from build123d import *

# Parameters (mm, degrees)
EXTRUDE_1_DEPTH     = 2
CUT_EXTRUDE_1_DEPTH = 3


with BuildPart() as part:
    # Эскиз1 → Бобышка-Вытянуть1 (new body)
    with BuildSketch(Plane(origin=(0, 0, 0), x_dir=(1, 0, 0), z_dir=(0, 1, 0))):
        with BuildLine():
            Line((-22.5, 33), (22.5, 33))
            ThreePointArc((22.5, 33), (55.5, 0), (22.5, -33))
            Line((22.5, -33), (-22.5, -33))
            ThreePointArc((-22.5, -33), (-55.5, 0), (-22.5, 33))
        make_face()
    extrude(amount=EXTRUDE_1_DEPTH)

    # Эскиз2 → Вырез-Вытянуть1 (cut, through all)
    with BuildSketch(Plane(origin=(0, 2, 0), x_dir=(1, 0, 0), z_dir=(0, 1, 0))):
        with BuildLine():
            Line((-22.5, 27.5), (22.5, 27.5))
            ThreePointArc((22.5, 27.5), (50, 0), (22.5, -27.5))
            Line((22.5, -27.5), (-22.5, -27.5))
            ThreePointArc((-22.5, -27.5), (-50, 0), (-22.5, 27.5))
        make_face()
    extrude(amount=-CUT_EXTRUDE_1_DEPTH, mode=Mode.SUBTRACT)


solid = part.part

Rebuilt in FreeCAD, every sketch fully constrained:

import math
import FreeCAD as App
import Part
import Sketcher

V = App.Vector

doc = App.newDocument("Part")
body = doc.addObject("PartDesign::Body", "Body")

# Sketch on XZ plane
sketch1 = body.newObject("Sketcher::SketchObject", "Sketch")
sketch1.AttachmentSupport = (doc.getObject("XZ_Plane"), [""])
sketch1.MapMode = "FlatFace"
sketch1.addGeometry(Part.LineSegment(V(22, -33, 0), V(-22, -33, 0)), False)
sketch1.addGeometry(Part.ArcOfCircle(Part.Circle(V(-22, 0, 0), V(0, 0, 1), 33), math.radians(90), math.radians(270)), False)
sketch1.addGeometry(Part.LineSegment(V(-22, 33, 0), V(22, 33, 0)), False)
sketch1.addGeometry(Part.ArcOfCircle(Part.Circle(V(22, 0, 0), V(0, 0, 1), 33), math.radians(-90), math.radians(90)), False)
sketch1.addConstraint(Sketcher.Constraint("Tangent", 0, 2, 1, 2))
sketch1.addConstraint(Sketcher.Constraint("Tangent", 1, 1, 2, 1))
sketch1.addConstraint(Sketcher.Constraint("Tangent", 2, 2, 3, 2))
sketch1.addConstraint(Sketcher.Constraint("Tangent", 3, 1, 0, 1))
sketch1.addConstraint(Sketcher.Constraint("Horizontal", 0))
sketch1.addConstraint(Sketcher.Constraint("Horizontal", 2))
sketch1.addConstraint(Sketcher.Constraint("Symmetric", 1, 3, 3, 3, -1, 1))
sketch1.addConstraint(Sketcher.Constraint("Radius", 1, 33.0))
sketch1.addConstraint(Sketcher.Constraint("DistanceX", 0, 2, 0, 1, 45.0))
pad1 = body.newObject("PartDesign::Pad", "Pad")
pad1.Profile = sketch1
pad1.Length = 2
pad1.Reversed = True

# Sketch on XZ plane
sketch2 = body.newObject("Sketcher::SketchObject", "Sketch001")
sketch2.AttachmentSupport = (doc.getObject("XZ_Plane"), [""])
sketch2.MapMode = "FlatFace"
sketch2.AttachmentOffset = App.Placement(V(0, 0, -2), App.Rotation())
sketch2.addGeometry(Part.LineSegment(V(22, -28, 0), V(-22, -28, 0)), False)
sketch2.addGeometry(Part.ArcOfCircle(Part.Circle(V(-22, 0, 0), V(0, 0, 1), 28), math.radians(90), math.radians(270)), False)
sketch2.addGeometry(Part.LineSegment(V(-22, 28, 0), V(22, 28, 0)), False)
sketch2.addGeometry(Part.ArcOfCircle(Part.Circle(V(22, 0, 0), V(0, 0, 1), 28), math.radians(-90), math.radians(90)), False)
sketch2.addConstraint(Sketcher.Constraint("Tangent", 0, 2, 1, 2))
sketch2.addConstraint(Sketcher.Constraint("Tangent", 1, 1, 2, 1))
sketch2.addConstraint(Sketcher.Constraint("Tangent", 2, 2, 3, 2))
sketch2.addConstraint(Sketcher.Constraint("Tangent", 3, 1, 0, 1))
sketch2.addConstraint(Sketcher.Constraint("Horizontal", 0))
sketch2.addConstraint(Sketcher.Constraint("Horizontal", 2))
sketch2.addConstraint(Sketcher.Constraint("Symmetric", 1, 3, 3, 3, -1, 1))
sketch2.addConstraint(Sketcher.Constraint("Radius", 1, 27.5))
sketch2.addConstraint(Sketcher.Constraint("DistanceX", 0, 2, 0, 1, 45.0))
pocket1 = body.newObject("PartDesign::Pocket", "Pocket")
pocket1.Profile = sketch2
pocket1.Type = "ThroughAll"
pocket1.Reversed = True

doc.recompute()
